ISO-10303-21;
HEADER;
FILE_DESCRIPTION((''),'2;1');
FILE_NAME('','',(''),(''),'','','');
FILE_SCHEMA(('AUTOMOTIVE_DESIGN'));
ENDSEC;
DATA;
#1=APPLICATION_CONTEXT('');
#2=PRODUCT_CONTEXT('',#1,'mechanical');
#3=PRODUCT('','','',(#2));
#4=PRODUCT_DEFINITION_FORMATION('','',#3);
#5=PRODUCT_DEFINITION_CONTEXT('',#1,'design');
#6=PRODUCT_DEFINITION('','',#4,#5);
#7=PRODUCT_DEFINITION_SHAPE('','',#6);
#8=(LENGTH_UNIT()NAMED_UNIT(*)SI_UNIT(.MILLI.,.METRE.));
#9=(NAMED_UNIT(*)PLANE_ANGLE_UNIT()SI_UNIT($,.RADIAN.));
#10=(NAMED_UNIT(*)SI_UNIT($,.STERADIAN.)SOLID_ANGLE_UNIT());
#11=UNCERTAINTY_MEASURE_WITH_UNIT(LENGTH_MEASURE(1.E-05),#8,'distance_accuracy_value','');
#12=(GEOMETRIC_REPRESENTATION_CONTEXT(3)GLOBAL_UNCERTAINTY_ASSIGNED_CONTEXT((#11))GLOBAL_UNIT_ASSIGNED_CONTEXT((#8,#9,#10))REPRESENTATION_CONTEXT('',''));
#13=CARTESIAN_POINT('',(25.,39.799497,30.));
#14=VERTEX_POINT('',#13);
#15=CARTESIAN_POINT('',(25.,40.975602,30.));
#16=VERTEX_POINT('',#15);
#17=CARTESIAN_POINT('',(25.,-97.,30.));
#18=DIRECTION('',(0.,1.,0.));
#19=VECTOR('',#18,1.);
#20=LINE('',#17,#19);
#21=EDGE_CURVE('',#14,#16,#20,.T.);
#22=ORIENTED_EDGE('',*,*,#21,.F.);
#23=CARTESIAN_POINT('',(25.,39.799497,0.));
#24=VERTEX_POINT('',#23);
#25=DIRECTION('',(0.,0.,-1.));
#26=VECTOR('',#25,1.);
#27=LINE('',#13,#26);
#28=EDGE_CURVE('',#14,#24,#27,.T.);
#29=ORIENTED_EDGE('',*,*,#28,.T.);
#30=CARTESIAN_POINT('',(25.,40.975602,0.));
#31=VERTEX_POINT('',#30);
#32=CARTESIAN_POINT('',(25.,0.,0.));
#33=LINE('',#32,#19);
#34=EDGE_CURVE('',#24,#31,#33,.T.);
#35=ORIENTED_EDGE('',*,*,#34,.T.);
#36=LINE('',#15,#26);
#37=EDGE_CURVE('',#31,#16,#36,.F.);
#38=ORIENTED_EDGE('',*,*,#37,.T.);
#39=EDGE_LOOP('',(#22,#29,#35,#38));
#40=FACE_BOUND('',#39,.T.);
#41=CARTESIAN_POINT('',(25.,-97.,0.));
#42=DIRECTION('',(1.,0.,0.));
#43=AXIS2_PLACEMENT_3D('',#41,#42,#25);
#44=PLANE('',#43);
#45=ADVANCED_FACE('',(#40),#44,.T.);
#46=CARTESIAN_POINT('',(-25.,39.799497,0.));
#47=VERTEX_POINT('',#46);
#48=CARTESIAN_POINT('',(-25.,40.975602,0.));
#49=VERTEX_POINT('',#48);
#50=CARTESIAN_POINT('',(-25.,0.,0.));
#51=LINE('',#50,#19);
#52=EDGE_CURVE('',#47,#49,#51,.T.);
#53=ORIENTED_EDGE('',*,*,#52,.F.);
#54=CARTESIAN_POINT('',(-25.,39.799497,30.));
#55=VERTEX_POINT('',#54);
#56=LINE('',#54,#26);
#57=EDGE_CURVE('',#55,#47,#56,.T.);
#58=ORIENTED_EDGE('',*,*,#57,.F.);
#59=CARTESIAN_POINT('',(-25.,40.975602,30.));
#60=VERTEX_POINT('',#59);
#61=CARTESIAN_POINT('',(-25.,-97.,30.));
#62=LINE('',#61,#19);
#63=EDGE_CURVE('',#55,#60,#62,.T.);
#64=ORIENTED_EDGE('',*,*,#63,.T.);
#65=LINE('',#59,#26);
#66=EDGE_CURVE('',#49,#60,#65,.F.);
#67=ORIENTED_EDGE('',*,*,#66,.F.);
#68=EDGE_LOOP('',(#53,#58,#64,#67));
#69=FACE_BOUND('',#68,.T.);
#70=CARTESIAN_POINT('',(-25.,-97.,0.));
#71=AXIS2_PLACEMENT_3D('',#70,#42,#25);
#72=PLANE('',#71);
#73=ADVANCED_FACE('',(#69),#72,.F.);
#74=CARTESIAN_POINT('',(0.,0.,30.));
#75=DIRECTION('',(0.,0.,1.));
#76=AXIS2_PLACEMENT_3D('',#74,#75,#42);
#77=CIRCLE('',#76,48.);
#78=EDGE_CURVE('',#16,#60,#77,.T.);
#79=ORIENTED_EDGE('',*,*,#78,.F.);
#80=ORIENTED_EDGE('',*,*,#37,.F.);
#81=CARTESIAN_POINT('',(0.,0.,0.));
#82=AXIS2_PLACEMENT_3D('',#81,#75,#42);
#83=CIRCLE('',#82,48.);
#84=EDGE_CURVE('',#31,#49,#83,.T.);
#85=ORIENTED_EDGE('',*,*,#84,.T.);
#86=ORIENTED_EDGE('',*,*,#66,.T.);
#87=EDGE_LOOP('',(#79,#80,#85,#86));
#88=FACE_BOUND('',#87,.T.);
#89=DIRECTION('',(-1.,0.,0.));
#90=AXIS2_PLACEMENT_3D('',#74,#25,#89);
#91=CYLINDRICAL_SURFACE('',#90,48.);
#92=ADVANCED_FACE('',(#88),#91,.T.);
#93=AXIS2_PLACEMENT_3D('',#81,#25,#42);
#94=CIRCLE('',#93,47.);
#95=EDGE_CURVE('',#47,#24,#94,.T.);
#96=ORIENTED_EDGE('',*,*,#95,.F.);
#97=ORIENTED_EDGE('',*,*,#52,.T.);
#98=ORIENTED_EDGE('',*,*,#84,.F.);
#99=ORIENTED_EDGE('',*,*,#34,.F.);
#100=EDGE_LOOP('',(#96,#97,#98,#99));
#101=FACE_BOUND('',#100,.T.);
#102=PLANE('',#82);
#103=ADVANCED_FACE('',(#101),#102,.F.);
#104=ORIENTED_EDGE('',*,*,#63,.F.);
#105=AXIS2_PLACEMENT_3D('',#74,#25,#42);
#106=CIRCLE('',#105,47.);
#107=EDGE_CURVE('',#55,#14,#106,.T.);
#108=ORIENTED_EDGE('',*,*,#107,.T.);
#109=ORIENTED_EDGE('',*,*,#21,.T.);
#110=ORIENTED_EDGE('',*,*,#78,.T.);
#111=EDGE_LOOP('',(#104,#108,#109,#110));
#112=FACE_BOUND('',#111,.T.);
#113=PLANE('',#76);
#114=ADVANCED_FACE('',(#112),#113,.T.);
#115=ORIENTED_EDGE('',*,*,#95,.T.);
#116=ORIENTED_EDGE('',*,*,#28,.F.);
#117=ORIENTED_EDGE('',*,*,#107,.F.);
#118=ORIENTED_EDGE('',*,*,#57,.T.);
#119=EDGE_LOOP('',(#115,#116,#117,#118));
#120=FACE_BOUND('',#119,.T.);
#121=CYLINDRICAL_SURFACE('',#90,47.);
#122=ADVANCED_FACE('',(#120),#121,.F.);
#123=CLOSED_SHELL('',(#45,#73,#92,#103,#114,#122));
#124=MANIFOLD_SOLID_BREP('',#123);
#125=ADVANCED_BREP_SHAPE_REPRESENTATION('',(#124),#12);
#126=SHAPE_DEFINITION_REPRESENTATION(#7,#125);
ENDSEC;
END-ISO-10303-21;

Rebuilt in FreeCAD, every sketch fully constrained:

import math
import FreeCAD as App
import Part
import Sketcher

doc = App.newDocument("Part")
body = doc.addObject("PartDesign::Body", "Body")

sketch1 = body.newObject("Sketcher::SketchObject", "Sketch")
sketch1.AttachmentSupport = (doc.getObject("XY_Plane"), [""])
sketch1.MapMode = "FlatFace"
sketch1.addGeometry([
    Part.LineSegment(App.Vector(-48, 0, 0), App.Vector(-47, 0, 0)),
    Part.ArcOfCircle(Part.Circle(App.Vector(0, 0, 0), App.Vector(0, 0, 1), 47), math.radians(0), math.radians(180)),
    Part.LineSegment(App.Vector(47, 0, 0), App.Vector(48, 0, 0)),
    Part.ArcOfCircle(Part.Circle(App.Vector(0, 0, 0), App.Vector(0, 0, 1), 48), math.radians(0), math.radians(180)),
], False)
sketch1.addConstraint([
    Sketcher.Constraint("Coincident", 0, 2, 1, 2),
    Sketcher.Constraint("Coincident", 1, 1, 2, 1),
    Sketcher.Constraint("Coincident", 2, 2, 3, 1),
    Sketcher.Constraint("Coincident", 3, 2, 0, 1),
    Sketcher.Constraint("Horizontal", 0),
    Sketcher.Constraint("Horizontal", 2),
    Sketcher.Constraint("Coincident", 1, 3, -1, 1),
    Sketcher.Constraint("Coincident", 3, 3, -1, 1),
    Sketcher.Constraint("PointOnObject", 0, 2, -1),
    Sketcher.Constraint("PointOnObject", 1, 1, -1),
    Sketcher.Constraint("Radius", 1, 47.0),
    Sketcher.Constraint("Radius", 3, 48.0),
])
pad1 = body.newObject("PartDesign::Pad", "Pad")
pad1.Profile = sketch1
pad1.Length = 30

sketch2 = body.newObject("Sketcher::SketchObject", "Sketch001")
sketch2.AttachmentSupport = (doc.getObject("XZ_Plane"), [""])
sketch2.MapMode = "FlatFace"
sketch2.AttachmentOffset = App.Placement(App.Vector(0, 0, -60), App.Rotation())
sketch2.addGeometry([
    Part.LineSegment(App.Vector(25, 0, 0), App.Vector(25, 30, 0)),
    Part.LineSegment(App.Vector(25, 30, 0), App.Vector(54, 30, 0)),
    Part.LineSegment(App.Vector(54, 30, 0), App.Vector(54, 0, 0)),
    Part.LineSegment(App.Vector(54, 0, 0), App.Vector(25, 0, 0)),
    Part.LineSegment(App.Vector(-54, 0, 0), App.Vector(-54, 30, 0)),
    Part.LineSegment(App.Vector(-54, 30, 0), App.Vector(-25, 30, 0)),
    Part.LineSegment(App.Vector(-25, 30, 0), App.Vector(-25, 0, 0)),
    Part.LineSegment(App.Vector(-25, 0, 0), App.Vector(-54, 0, 0)),
], False)
sketch2.addConstraint([
    Sketcher.Constraint("Coincident", 0, 2, 1, 1),
    Sketcher.Constraint("Coincident", 1, 2, 2, 1),
    Sketcher.Constraint("Coincident", 2, 2, 3, 1),
    Sketcher.Constraint("Coincident", 3, 2, 0, 1),
    Sketcher.Constraint("Coincident", 4, 2, 5, 1),
    Sketcher.Constraint("Coincident", 5, 2, 6, 1),
    Sketcher.Constraint("Coincident", 6, 2, 7, 1),
    Sketcher.Constraint("Coincident", 7, 2, 4, 1),
    Sketcher.Constraint("Vertical", 0),
    Sketcher.Constraint("Horizontal", 1),
    Sketcher.Constraint("Vertical", 2),
    Sketcher.Constraint("Horizontal", 3),
    Sketcher.Constraint("Vertical", 4),
    Sketcher.Constraint("Horizontal", 5),
    Sketcher.Constraint("Vertical", 6),
    Sketcher.Constraint("Horizontal", 7),
    Sketcher.Constraint("Symmetric", 3, 2, 6, 2, -1, 1),
    Sketcher.Constraint("Symmetric", 1, 2, 4, 2, -2),
    Sketcher.Constraint("PointOnObject", 2, 2, -1),
    Sketcher.Constraint("DistanceY", 0, 1, 0, 2, 30.0),
    Sketcher.Constraint("DistanceX", -1, 1, 0, 2, 25.0),
    Sketcher.Constraint("DistanceX", 1, 1, 1, 2, 29.120225),
])
pocket1 = body.newObject("PartDesign::Pocket", "Pocket")
pocket1.Profile = sketch2
pocket1.Length = 157
pocket1.Reversed = True

doc.recompute()
